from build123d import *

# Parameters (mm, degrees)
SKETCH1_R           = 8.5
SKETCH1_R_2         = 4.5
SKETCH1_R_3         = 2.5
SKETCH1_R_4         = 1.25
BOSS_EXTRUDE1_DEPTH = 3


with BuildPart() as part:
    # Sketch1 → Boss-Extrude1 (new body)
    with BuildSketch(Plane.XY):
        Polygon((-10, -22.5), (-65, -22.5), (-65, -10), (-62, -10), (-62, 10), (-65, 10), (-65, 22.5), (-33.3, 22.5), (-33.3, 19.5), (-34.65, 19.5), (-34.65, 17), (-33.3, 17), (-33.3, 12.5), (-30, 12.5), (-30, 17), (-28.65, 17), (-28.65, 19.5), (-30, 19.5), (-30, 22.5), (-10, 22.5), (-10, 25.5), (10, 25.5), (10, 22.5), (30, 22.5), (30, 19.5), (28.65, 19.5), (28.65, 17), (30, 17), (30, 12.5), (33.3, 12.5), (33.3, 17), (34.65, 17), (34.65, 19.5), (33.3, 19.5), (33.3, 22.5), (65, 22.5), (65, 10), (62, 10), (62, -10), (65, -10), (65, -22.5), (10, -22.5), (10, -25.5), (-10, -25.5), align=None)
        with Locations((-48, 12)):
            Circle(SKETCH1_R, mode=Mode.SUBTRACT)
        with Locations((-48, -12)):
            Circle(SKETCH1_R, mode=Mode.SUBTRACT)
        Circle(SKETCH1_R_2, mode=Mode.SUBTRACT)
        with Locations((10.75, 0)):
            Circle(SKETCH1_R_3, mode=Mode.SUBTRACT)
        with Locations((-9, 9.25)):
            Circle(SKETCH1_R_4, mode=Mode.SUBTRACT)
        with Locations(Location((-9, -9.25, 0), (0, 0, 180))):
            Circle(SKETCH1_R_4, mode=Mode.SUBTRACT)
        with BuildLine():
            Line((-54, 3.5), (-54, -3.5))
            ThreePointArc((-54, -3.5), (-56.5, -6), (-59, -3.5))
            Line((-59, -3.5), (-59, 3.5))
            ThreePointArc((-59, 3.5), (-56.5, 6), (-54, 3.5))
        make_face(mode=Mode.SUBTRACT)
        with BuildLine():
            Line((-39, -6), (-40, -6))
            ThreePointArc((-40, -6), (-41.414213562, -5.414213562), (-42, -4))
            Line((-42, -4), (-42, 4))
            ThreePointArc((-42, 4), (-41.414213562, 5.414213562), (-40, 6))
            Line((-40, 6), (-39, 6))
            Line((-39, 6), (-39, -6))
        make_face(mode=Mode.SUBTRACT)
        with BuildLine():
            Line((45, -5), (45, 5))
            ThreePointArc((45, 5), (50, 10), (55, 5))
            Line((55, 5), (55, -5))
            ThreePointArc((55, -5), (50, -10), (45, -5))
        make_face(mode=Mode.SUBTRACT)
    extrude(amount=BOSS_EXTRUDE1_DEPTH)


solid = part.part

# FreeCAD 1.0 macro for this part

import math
import FreeCAD as App
import Part
import Sketcher

V = App.Vector

doc = App.newDocument("Part")
params = doc.addObject("Spreadsheet::Sheet", "Params")
for row, (alias, value) in enumerate([
    ("sketch1_diameter", "17 mm"),
    ("sketch1_diameter2", "5 mm"),
    ("sketch1_diameter3", "9 mm"),
    ("sketch1_radius", "5 mm"),
    ("sketch1_radius2", "2 mm"),
    ("pad1_length", "3 mm"),
], start=1):
    params.set(f"A{row}", alias)
    params.set(f"B{row}", "=" + value)
    params.setAlias(f"B{row}", alias)

body = doc.addObject("PartDesign::Body", "Body")

sketch1 = body.newObject("Sketcher::SketchObject", "Sketch")
sketch1.AttachmentSupport = (doc.getObject("XY_Plane"), [""])
sketch1.MapMode = "FlatFace"
sketch1.addGeometry(Part.LineSegment(V(-65, -22.5, 0), V(-10, -22.5, 0)), False)
sketch1.addGeometry(Part.LineSegment(V(-10, -22.5, 0), V(-10, -25.5, 0)), False)
sketch1.addGeometry(Part.LineSegment(V(-10, -25.5, 0), V(10, -25.5, 0)), False)
sketch1.addGeometry(Part.LineSegment(V(10, -25.5, 0), V(10, -22.5, 0)), False)
sketch1.addGeometry(Part.LineSegment(V(10, -22.5, 0), V(65, -22.5, 0)), False)
sketch1.addGeometry(Part.LineSegment(V(65, -22.5, 0), V(65, -10, 0)), False)
sketch1.addGeometry(Part.LineSegment(V(65, -10, 0), V(62, -10, 0)), False)
sketch1.addGeometry(Part.LineSegment(V(62, -10, 0), V(62, 10, 0)), False)
sketch1.addGeometry(Part.LineSegment(V(62, 10, 0), V(65, 10, 0)), False)
sketch1.addGeometry(Part.LineSegment(V(65, 10, 0), V(65, 22.5, 0)), False)
sketch1.addGeometry(Part.LineSegment(V(65, 22.5, 0), V(33.3, 22.5, 0)), False)
sketch1.addGeometry(Part.LineSegment(V(33.3, 22.5, 0), V(33.3, 19.5, 0)), False)
sketch1.addGeometry(Part.LineSegment(V(33.3, 19.5, 0), V(34.6, 19.5, 0)), False)
sketch1.addGeometry(Part.LineSegment(V(34.6, 19.5, 0), V(34.6, 17, 0)), False)
sketch1.addGeometry(Part.LineSegment(V(34.6, 17, 0), V(33.3, 17, 0)), False)
sketch1.addGeometry(Part.LineSegment(V(33.3, 17, 0), V(33.3, 12.5, 0)), False)
sketch1.addGeometry(Part.LineSegment(V(33.3, 12.5, 0), V(30, 12.5, 0)), False)
sketch1.addGeometry(Part.LineSegment(V(30, 12.5, 0), V(30, 17, 0)), False)
sketch1.addGeometry(Part.LineSegment(V(30, 17, 0), V(28.6, 17, 0)), False)
sketch1.addGeometry(Part.LineSegment(V(28.6, 17, 0), V(28.6, 19.5, 0)), False)
sketch1.addGeometry(Part.LineSegment(V(28.6, 19.5, 0), V(30, 19.5, 0)), False)
sketch1.addGeometry(Part.LineSegment(V(30, 19.5, 0), V(30, 22.5, 0)), False)
sketch1.addGeometry(Part.LineSegment(V(30, 22.5, 0), V(10, 22.5, 0)), False)
sketch1.addGeometry(Part.LineSegment(V(10, 22.5, 0), V(10, 25.5, 0)), False)
sketch1.addGeometry(Part.LineSegment(V(10, 25.5, 0), V(-10, 25.5, 0)), False)
sketch1.addGeometry(Part.LineSegment(V(-10, 25.5, 0), V(-10, 22.5, 0)), False)
sketch1.addGeometry(Part.LineSegment(V(-10, 22.5, 0), V(-30, 22.5, 0)), False)
sketch1.addGeometry(Part.LineSegment(V(-30, 22.5, 0), V(-30, 19.5, 0)), False)
sketch1.addGeometry(Part.LineSegment(V(-30, 19.5, 0), V(-28.6, 19.5, 0)), False)
sketch1.addGeometry(Part.LineSegment(V(-28.6, 19.5, 0), V(-28.6, 17, 0)), False)
sketch1.addGeometry(Part.LineSegment(V(-28.6, 17, 0), V(-30, 17, 0)), False)
sketch1.addGeometry(Part.LineSegment(V(-30, 17, 0), V(-30, 12.5, 0)), False)
sketch1.addGeometry(Part.LineSegment(V(-30, 12.5, 0), V(-33.3, 12.5, 0)), False)
sketch1.addGeometry(Part.LineSegment(V(-33.3, 12.5, 0), V(-33.3, 17, 0)), False)
sketch1.addGeometry(Part.LineSegment(V(-33.3, 17, 0), V(-34.6, 17, 0)), False)
sketch1.addGeometry(Part.LineSegment(V(-34.6, 17, 0), V(-34.6, 19.5, 0)), False)
sketch1.addGeometry(Part.LineSegment(V(-34.6, 19.5, 0), V(-33.3, 19.5, 0)), False)
sketch1.addGeometry(Part.LineSegment(V(-33.3, 19.5, 0), V(-33.3, 22.5, 0)), False)
sketch1.addGeometry(Part.LineSegment(V(-33.3, 22.5, 0), V(-65, 22.5, 0)), False)
sketch1.addGeometry(Part.LineSegment(V(-65, 22.5, 0), V(-65, 10, 0)), False)
sketch1.addGeometry(Part.LineSegment(V(-65, 10, 0), V(-62, 10, 0)), False)
sketch1.addGeometry(Part.LineSegment(V(-62, 10, 0), V(-62, -10, 0)), False)
sketch1.addGeometry(Part.LineSegment(V(-62, -10, 0), V(-65, -10, 0)), False)
sketch1.addGeometry(Part.LineSegment(V(-65, -10, 0), V(-65, -22.5, 0)), False)
sketch1.addGeometry(Part.Circle(V(-48, -12, 0), V(0, 0, 1), 8.5), False)
sketch1.addGeometry(Part.Circle(V(-9, -9.2, 0), V(0, 0, 1), 1.2), False)
sketch1.addGeometry(Part.LineSegment(V(45, -5, 0), V(45, 5, 0)), False)
sketch1.addGeometry(Part.ArcOfCircle(Part.Circle(V(50, 5, 0), V(0, 0, 1), 5), math.radians(0), math.radians(180)), False)
sketch1.addGeometry(Part.LineSegment(V(55, 5, 0), V(55, -5, 0)), False)
sketch1.addGeometry(Part.ArcOfCircle(Part.Circle(V(50, -5, 0), V(0, 0, 1), 5), math.radians(180), math.radians(360)), False)
sketch1.addGeometry(Part.Circle(V(10.8, 0, 0), V(0, 0, 1), 2.5), False)
sketch1.addGeometry(Part.Circle(V(0, 0, 0), V(0, 0, 1), 4.5), False)
sketch1.addGeometry(Part.Circle(V(-9, 9.2, 0), V(0, 0, 1), 1.2), False)
sketch1.addGeometry(Part.LineSegment(V(-39, -6, 0), V(-40, -6, 0)), False)
sketch1.addGeometry(Part.ArcOfCircle(Part.Circle(V(-40, -4, 0), V(0, 0, 1), 2), math.radians(-180), math.radians(-90)), False)
sketch1.addGeometry(Part.LineSegment(V(-42, -4, 0), V(-42, 4, 0)), False)
sketch1.addGeometry(Part.ArcOfCircle(Part.Circle(V(-40, 4, 0), V(0, 0, 1), 2), math.radians(90), math.radians(180)), False)
sketch1.addGeometry(Part.LineSegment(V(-40, 6, 0), V(-39, 6, 0)), False)
sketch1.addGeometry(Part.LineSegment(V(-39, 6, 0), V(-39, -6, 0)), False)
sketch1.addGeometry(Part.LineSegment(V(-54, 3.5, 0), V(-54, -3.5, 0)), False)
sketch1.addGeometry(Part.ArcOfCircle(Part.Circle(V(-56.5, -3.5, 0), V(0, 0, 1), 2.5), math.radians(180), math.radians(360)), False)
sketch1.addGeometry(Part.LineSegment(V(-59, -3.5, 0), V(-59, 3.5, 0)), False)
sketch1.addGeometry(Part.ArcOfCircle(Part.Circle(V(-56.5, 3.5, 0), V(0, 0, 1), 2.5), math.radians(0), math.radians(180)), False)
sketch1.addGeometry(Part.Circle(V(-48, 12, 0), V(0, 0, 1), 8.5), False)
sketch1.addConstraint(Sketcher.Constraint("Coincident", 0, 2, 1, 1))
sketch1.addConstraint(Sketcher.Constraint("Coincident", 1, 2, 2, 1))
sketch1.addConstraint(Sketcher.Constraint("Coincident", 2, 2, 3, 1))
sketch1.addConstraint(Sketcher.Constraint("Coincident", 3, 2, 4, 1))
sketch1.addConstraint(Sketcher.Constraint("Coincident", 4, 2, 5, 1))
sketch1.addConstraint(Sketcher.Constraint("Coincident", 5, 2, 6, 1))
sketch1.addConstraint(Sketcher.Constraint("Coincident", 6, 2, 7, 1))
sketch1.addConstraint(Sketcher.Constraint("Coincident", 7, 2, 8, 1))
sketch1.addConstraint(Sketcher.Constraint("Coincident", 8, 2, 9, 1))
sketch1.addConstraint(Sketcher.Constraint("Coincident", 9, 2, 10, 1))
sketch1.addConstraint(Sketcher.Constraint("Coincident", 10, 2, 11, 1))
sketch1.addConstraint(Sketcher.Constraint("Coincident", 11, 2, 12, 1))
sketch1.addConstraint(Sketcher.Constraint("Coincident", 12, 2, 13, 1))
sketch1.addConstraint(Sketcher.Constraint("Coincident", 13, 2, 14, 1))
sketch1.addConstraint(Sketcher.Constraint("Coincident", 14, 2, 15, 1))
sketch1.addConstraint(Sketcher.Constraint("Coincident", 15, 2, 16, 1))
sketch1.addConstraint(Sketcher.Constraint("Coincident", 16, 2, 17, 1))
sketch1.addConstraint(Sketcher.Constraint("Coincident", 17, 2, 18, 1))
sketch1.addConstraint(Sketcher.Constraint("Coincident", 18, 2, 19, 1))
sketch1.addConstraint(Sketcher.Constraint("Coincident", 19, 2, 20, 1))
sketch1.addConstraint(Sketcher.Constraint("Coincident", 20, 2, 21, 1))
sketch1.addConstraint(Sketcher.Constraint("Coincident", 21, 2, 22, 1))
sketch1.addConstraint(Sketcher.Constraint("Coincident", 22, 2, 23, 1))
sketch1.addConstraint(Sketcher.Constraint("Coincident", 23, 2, 24, 1))
sketch1.addConstraint(Sketcher.Constraint("Coincident", 24, 2, 25, 1))
sketch1.addConstraint(Sketcher.Constraint("Coincident", 25, 2, 26, 1))
sketch1.addConstraint(Sketcher.Constraint("Coincident", 26, 2, 27, 1))
sketch1.addConstraint(Sketcher.Constraint("Coincident", 27, 2, 28, 1))
sketch1.addConstraint(Sketcher.Constraint("Coincident", 28, 2, 29, 1))
sketch1.addConstraint(Sketcher.Constraint("Coincident", 29, 2, 30, 1))
sketch1.addConstraint(Sketcher.Constraint("Coincident", 30, 2, 31, 1))
sketch1.addConstraint(Sketcher.Constraint("Coincident", 31, 2, 32, 1))
sketch1.addConstraint(Sketcher.Constraint("Coincident", 32, 2, 33, 1))
sketch1.addConstraint(Sketcher.Constraint("Coincident", 33, 2, 34, 1))
sketch1.addConstraint(Sketcher.Constraint("Coincident", 34, 2, 35, 1))
sketch1.addConstraint(Sketcher.Constraint("Coincident", 35, 2, 36, 1))
sketch1.addConstraint(Sketcher.Constraint("Coincident", 36, 2, 37, 1))
sketch1.addConstraint(Sketcher.Constraint("Coincident", 37, 2, 38, 1))
sketch1.addConstraint(Sketcher.Constraint("Coincident", 38, 2, 39, 1))
sketch1.addConstraint(Sketcher.Constraint("Coincident", 39, 2, 40, 1))
sketch1.addConstraint(Sketcher.Constraint("Coincident", 40, 2, 41, 1))
sketch1.addConstraint(Sketcher.Constraint("Coincident", 41, 2, 42, 1))
sketch1.addConstraint(Sketcher.Constraint("Coincident", 42, 2, 43, 1))
sketch1.addConstraint(Sketcher.Constraint("Coincident", 43, 2, 0, 1))
sketch1.addConstraint(Sketcher.Constraint("Tangent", 46, 2, 47, 2))
sketch1.addConstraint(Sketcher.Constraint("Tangent", 47, 1, 48, 1))
sketch1.addConstraint(Sketcher.Constraint("Tangent", 48, 2, 49, 2))
sketch1.addConstraint(Sketcher.Constraint("Tangent", 49, 1, 46, 1))
sketch1.addConstraint(Sketcher.Constraint("Tangent", 53, 2, 54, 2))
sketch1.addConstraint(Sketcher.Constraint("Tangent", 54, 1, 55, 1))
sketch1.addConstraint(Sketcher.Constraint("Tangent", 55, 2, 56, 2))
sketch1.addConstraint(Sketcher.Constraint("Tangent", 56, 1, 57, 1))
sketch1.addConstraint(Sketcher.Constraint("Coincident", 57, 2, 58, 1))
sketch1.addConstraint(Sketcher.Constraint("Coincident", 58, 2, 53, 1))
sketch1.addConstraint(Sketcher.Constraint("Tangent", 59, 2, 60, 2))
sketch1.addConstraint(Sketcher.Constraint("Tangent", 60, 1, 61, 1))
sketch1.addConstraint(Sketcher.Constraint("Tangent", 61, 2, 62, 2))
sketch1.addConstraint(Sketcher.Constraint("Tangent", 62, 1, 59, 1))
sketch1.addConstraint(Sketcher.Constraint("Horizontal", 0))
sketch1.addConstraint(Sketcher.Constraint("Vertical", 1))
sketch1.addConstraint(Sketcher.Constraint("Horizontal", 2))
sketch1.addConstraint(Sketcher.Constraint("Vertical", 3))
sketch1.addConstraint(Sketcher.Constraint("Horizontal", 4))
sketch1.addConstraint(Sketcher.Constraint("Vertical", 5))
sketch1.addConstraint(Sketcher.Constraint("Horizontal", 6))
sketch1.addConstraint(Sketcher.Constraint("Vertical", 7))
sketch1.addConstraint(Sketcher.Constraint("Horizontal", 8))
sketch1.addConstraint(Sketcher.Constraint("Vertical", 9))
sketch1.addConstraint(Sketcher.Constraint("Horizontal", 10))
sketch1.addConstraint(Sketcher.Constraint("Vertical", 11))
sketch1.addConstraint(Sketcher.Constraint("Horizontal", 12))
sketch1.addConstraint(Sketcher.Constraint("Vertical", 13))
sketch1.addConstraint(Sketcher.Constraint("Horizontal", 14))
sketch1.addConstraint(Sketcher.Constraint("Vertical", 15))
sketch1.addConstraint(Sketcher.Constraint("Horizontal", 16))
sketch1.addConstraint(Sketcher.Constraint("Vertical", 17))
sketch1.addConstraint(Sketcher.Constraint("Horizontal", 18))
sketch1.addConstraint(Sketcher.Constraint("Vertical", 19))
sketch1.addConstraint(Sketcher.Constraint("Horizontal", 20))
sketch1.addConstraint(Sketcher.Constraint("Vertical", 21))
sketch1.addConstraint(Sketcher.Constraint("Horizontal", 22))
sketch1.addConstraint(Sketcher.Constraint("Vertical", 23))
sketch1.addConstraint(Sketcher.Constraint("Horizontal", 24))
sketch1.addConstraint(Sketcher.Constraint("Vertical", 25))
sketch1.addConstraint(Sketcher.Constraint("Horizontal", 26))
sketch1.addConstraint(Sketcher.Constraint("Vertical", 27))
sketch1.addConstraint(Sketcher.Constraint("Horizontal", 28))
sketch1.addConstraint(Sketcher.Constraint("Vertical", 29))
sketch1.addConstraint(Sketcher.Constraint("Horizontal", 30))
sketch1.addConstraint(Sketcher.Constraint("Vertical", 31))
sketch1.addConstraint(Sketcher.Constraint("Horizontal", 32))
sketch1.addConstraint(Sketcher.Constraint("Vertical", 33))
sketch1.addConstraint(Sketcher.Constraint("Horizontal", 34))
sketch1.addConstraint(Sketcher.Constraint("Vertical", 35))
sketch1.addConstraint(Sketcher.Constraint("Horizontal", 36))
sketch1.addConstraint(Sketcher.Constraint("Vertical", 37))
sketch1.addConstraint(Sketcher.Constraint("Horizontal", 38))
sketch1.addConstraint(Sketcher.Constraint("Vertical", 39))
sketch1.addConstraint(Sketcher.Constraint("Horizontal", 40))
sketch1.addConstraint(Sketcher.Constraint("Vertical", 41))
sketch1.addConstraint(Sketcher.Constraint("Horizontal", 42))
sketch1.addConstraint(Sketcher.Constraint("Vertical", 43))
sketch1.addConstraint(Sketcher.Constraint("Vertical", 46))
sketch1.addConstraint(Sketcher.Constraint("Vertical", 48))
sketch1.addConstraint(Sketcher.Constraint("Horizontal", 53))
sketch1.addConstraint(Sketcher.Constraint("Vertical", 55))
sketch1.addConstraint(Sketcher.Constraint("Horizontal", 57))
sketch1.addConstraint(Sketcher.Constraint("Vertical", 58))
sketch1.addConstraint(Sketcher.Constraint("Vertical", 59))
sketch1.addConstraint(Sketcher.Constraint("Vertical", 61))
sketch1.addConstraint(Sketcher.Constraint("Coincident", 51, 3, -1, 1))
sketch1.addConstraint(Sketcher.Constraint("Equal", 45, 52))
sketch1.addConstraint(Sketcher.Constraint("Equal", 54, 56))
sketch1.addConstraint(Sketcher.Constraint("Equal", 50, 60))
sketch1.addConstraint(Sketcher.Constraint("Equal", 44, 63))
sketch1.addConstraint(Sketcher.Constraint("Symmetric", 0, 2, 22, 2, -1, 1))
sketch1.addConstraint(Sketcher.Constraint("Symmetric", 2, 2, 24, 2, -1, 1))
sketch1.addConstraint(Sketcher.Constraint("Symmetric", 4, 2, 38, 2, -1, 1))
sketch1.addConstraint(Sketcher.Constraint("Symmetric", 6, 2, 40, 2, -1, 1))
sketch1.addConstraint(Sketcher.Constraint("Symmetric", 8, 2, 42, 2, -1, 1))
sketch1.addConstraint(Sketcher.Constraint("Symmetric", 0, 2, 3, 2, -2))
sketch1.addConstraint(Sketcher.Constraint("Symmetric", 21, 2, 26, 2, -2))
sketch1.addConstraint(Sketcher.Constraint("Symmetric", 19, 2, 28, 2, -2))
sketch1.addConstraint(Sketcher.Constraint("Symmetric", 17, 2, 30, 2, -2))
sketch1.addConstraint(Sketcher.Constraint("Symmetric", 15, 2, 32, 2, -2))
sketch1.addConstraint(Sketcher.Constraint("Symmetric", 13, 2, 34, 2, -2))
sketch1.addConstraint(Sketcher.Constraint("Symmetric", 11, 2, 36, 2, -2))
sketch1.addConstraint(Sketcher.Constraint("Symmetric", 9, 2, 38, 2, -2))
sketch1.addConstraint(Sketcher.Constraint("Symmetric", 45, 3, 52, 3, -1))
sketch1.addConstraint(Sketcher.Constraint("Symmetric", 44, 3, 63, 3, -1))
sketch1.addConstraint(Sketcher.Constraint("PointOnObject", 50, 3, -1))
sketch1.addConstraint(Sketcher.Constraint("Horizontal", 14, 2, 17, 2))
sketch1.addConstraint(Sketcher.Constraint("Horizontal", 12, 2, 19, 2))
sketch1.addConstraint(Sketcher.Constraint("Horizontal", 8, 2, 39, 2))
sketch1.addConstraint(Sketcher.Constraint("Vertical", 11, 2, 14, 2))
sketch1.addConstraint(Sketcher.Constraint("Vertical", 17, 2, 20, 2))
sketch1.addConstraint(Sketcher.Constraint("Equal", 14, 18))
sketch1.addConstraint(Sketcher.Constraint("Equal", 2, 22))
sketch1.addConstraint(Sketcher.Constraint("Equal", 42, 1))
sketch1.addConstraint(Sketcher.Constraint("Equal", 26, 7))
sketch1.addConstraint(Sketcher.Constraint("Equal", 3, 11))
sketch1.addConstraint(Sketcher.Constraint("Diameter", 44, 17.0))
sketch1.addConstraint(Sketcher.Constraint("Diameter", 50, 5.0))
sketch1.addConstraint(Sketcher.Constraint("Diameter", 51, 9.0))
sketch1.addConstraint(Sketcher.Constraint("Radius", 47, 5.0))
sketch1.addConstraint(Sketcher.Constraint("Radius", 54, 2.0))
sketch1.addConstraint(Sketcher.Constraint("Diameter", 45, 2.5))
sketch1.addConstraint(Sketcher.Constraint("DistanceX", 0, 1, 0, 2, 55.0))
sketch1.addConstraint(Sketcher.Constraint("DistanceX", 2, 1, 2, 2, 20.0))
sketch1.addConstraint(Sketcher.Constraint("DistanceX", 6, 2, 6, 1, 3.0))
sketch1.addConstraint(Sketcher.Constraint("DistanceX", 53, 2, 53, 1, 1.0))
sketch1.addConstraint(Sketcher.Constraint("DistanceY", 46, 1, 46, 2, 10.0))
sketch1.addConstraint(Sketcher.Constraint("DistanceY", 55, 1, 55, 2, 8.0))
sketch1.addConstraint(Sketcher.Constraint("DistanceY", 59, 2, 59, 1, 7.0))
sketch1.addConstraint(Sketcher.Constraint("DistanceX", 10, 2, 10, 1, 31.7))
sketch1.addConstraint(Sketcher.Constraint("DistanceY", 5, 1, 5, 2, 12.5))
sketch1.addConstraint(Sketcher.Constraint("DistanceY", 13, 2, 13, 1, 2.5))
sketch1.addConstraint(Sketcher.Constraint("DistanceY", 15, 2, 15, 1, 4.5))
sketch1.addConstraint(Sketcher.Constraint("DistanceX", 44, 3, -1, 1, 48.0))
sketch1.addConstraint(Sketcher.Constraint("DistanceY", 44, 3, -1, 1, 12.0))
sketch1.addConstraint(Sketcher.Constraint("DistanceX", 45, 3, -1, 1, 9.0))
sketch1.addConstraint(Sketcher.Constraint("DistanceX", -1, 1, 47, 3, 50.0))
sketch1.addConstraint(Sketcher.Constraint("DistanceY", -1, 1, 47, 3, 5.0))
sketch1.addConstraint(Sketcher.Constraint("DistanceX", 54, 3, -1, 1, 40.0))
sketch1.addConstraint(Sketcher.Constraint("DistanceY", 54, 3, -1, 1, 4.0))
sketch1.addConstraint(Sketcher.Constraint("DistanceX", 59, 2, -1, 1, 54.0))
sketch1.addConstraint(Sketcher.Constraint("DistanceX", 12, 1, 12, 2, 1.35))
sketch1.addConstraint(Sketcher.Constraint("DistanceY", 60, 3, -1, 1, 3.5))
sketch1.addConstraint(Sketcher.Constraint("DistanceY", 45, 3, -1, 1, 9.25))
sketch1.addConstraint(Sketcher.Constraint("DistanceX", -1, 1, 50, 3, 10.75))
sketch1.setExpression("Constraints[141]", "Params.sketch1_diameter")
sketch1.setExpression("Constraints[142]", "Params.sketch1_diameter2")
sketch1.setExpression("Constraints[143]", "Params.sketch1_diameter3")
sketch1.setExpression("Constraints[144]", "Params.sketch1_radius")
sketch1.setExpression("Constraints[145]", "Params.sketch1_radius2")
pad1 = body.newObject("PartDesign::Pad", "Pad")
pad1.Profile = sketch1
pad1.setExpression("Length", "Params.pad1_length")

doc.recompute()
